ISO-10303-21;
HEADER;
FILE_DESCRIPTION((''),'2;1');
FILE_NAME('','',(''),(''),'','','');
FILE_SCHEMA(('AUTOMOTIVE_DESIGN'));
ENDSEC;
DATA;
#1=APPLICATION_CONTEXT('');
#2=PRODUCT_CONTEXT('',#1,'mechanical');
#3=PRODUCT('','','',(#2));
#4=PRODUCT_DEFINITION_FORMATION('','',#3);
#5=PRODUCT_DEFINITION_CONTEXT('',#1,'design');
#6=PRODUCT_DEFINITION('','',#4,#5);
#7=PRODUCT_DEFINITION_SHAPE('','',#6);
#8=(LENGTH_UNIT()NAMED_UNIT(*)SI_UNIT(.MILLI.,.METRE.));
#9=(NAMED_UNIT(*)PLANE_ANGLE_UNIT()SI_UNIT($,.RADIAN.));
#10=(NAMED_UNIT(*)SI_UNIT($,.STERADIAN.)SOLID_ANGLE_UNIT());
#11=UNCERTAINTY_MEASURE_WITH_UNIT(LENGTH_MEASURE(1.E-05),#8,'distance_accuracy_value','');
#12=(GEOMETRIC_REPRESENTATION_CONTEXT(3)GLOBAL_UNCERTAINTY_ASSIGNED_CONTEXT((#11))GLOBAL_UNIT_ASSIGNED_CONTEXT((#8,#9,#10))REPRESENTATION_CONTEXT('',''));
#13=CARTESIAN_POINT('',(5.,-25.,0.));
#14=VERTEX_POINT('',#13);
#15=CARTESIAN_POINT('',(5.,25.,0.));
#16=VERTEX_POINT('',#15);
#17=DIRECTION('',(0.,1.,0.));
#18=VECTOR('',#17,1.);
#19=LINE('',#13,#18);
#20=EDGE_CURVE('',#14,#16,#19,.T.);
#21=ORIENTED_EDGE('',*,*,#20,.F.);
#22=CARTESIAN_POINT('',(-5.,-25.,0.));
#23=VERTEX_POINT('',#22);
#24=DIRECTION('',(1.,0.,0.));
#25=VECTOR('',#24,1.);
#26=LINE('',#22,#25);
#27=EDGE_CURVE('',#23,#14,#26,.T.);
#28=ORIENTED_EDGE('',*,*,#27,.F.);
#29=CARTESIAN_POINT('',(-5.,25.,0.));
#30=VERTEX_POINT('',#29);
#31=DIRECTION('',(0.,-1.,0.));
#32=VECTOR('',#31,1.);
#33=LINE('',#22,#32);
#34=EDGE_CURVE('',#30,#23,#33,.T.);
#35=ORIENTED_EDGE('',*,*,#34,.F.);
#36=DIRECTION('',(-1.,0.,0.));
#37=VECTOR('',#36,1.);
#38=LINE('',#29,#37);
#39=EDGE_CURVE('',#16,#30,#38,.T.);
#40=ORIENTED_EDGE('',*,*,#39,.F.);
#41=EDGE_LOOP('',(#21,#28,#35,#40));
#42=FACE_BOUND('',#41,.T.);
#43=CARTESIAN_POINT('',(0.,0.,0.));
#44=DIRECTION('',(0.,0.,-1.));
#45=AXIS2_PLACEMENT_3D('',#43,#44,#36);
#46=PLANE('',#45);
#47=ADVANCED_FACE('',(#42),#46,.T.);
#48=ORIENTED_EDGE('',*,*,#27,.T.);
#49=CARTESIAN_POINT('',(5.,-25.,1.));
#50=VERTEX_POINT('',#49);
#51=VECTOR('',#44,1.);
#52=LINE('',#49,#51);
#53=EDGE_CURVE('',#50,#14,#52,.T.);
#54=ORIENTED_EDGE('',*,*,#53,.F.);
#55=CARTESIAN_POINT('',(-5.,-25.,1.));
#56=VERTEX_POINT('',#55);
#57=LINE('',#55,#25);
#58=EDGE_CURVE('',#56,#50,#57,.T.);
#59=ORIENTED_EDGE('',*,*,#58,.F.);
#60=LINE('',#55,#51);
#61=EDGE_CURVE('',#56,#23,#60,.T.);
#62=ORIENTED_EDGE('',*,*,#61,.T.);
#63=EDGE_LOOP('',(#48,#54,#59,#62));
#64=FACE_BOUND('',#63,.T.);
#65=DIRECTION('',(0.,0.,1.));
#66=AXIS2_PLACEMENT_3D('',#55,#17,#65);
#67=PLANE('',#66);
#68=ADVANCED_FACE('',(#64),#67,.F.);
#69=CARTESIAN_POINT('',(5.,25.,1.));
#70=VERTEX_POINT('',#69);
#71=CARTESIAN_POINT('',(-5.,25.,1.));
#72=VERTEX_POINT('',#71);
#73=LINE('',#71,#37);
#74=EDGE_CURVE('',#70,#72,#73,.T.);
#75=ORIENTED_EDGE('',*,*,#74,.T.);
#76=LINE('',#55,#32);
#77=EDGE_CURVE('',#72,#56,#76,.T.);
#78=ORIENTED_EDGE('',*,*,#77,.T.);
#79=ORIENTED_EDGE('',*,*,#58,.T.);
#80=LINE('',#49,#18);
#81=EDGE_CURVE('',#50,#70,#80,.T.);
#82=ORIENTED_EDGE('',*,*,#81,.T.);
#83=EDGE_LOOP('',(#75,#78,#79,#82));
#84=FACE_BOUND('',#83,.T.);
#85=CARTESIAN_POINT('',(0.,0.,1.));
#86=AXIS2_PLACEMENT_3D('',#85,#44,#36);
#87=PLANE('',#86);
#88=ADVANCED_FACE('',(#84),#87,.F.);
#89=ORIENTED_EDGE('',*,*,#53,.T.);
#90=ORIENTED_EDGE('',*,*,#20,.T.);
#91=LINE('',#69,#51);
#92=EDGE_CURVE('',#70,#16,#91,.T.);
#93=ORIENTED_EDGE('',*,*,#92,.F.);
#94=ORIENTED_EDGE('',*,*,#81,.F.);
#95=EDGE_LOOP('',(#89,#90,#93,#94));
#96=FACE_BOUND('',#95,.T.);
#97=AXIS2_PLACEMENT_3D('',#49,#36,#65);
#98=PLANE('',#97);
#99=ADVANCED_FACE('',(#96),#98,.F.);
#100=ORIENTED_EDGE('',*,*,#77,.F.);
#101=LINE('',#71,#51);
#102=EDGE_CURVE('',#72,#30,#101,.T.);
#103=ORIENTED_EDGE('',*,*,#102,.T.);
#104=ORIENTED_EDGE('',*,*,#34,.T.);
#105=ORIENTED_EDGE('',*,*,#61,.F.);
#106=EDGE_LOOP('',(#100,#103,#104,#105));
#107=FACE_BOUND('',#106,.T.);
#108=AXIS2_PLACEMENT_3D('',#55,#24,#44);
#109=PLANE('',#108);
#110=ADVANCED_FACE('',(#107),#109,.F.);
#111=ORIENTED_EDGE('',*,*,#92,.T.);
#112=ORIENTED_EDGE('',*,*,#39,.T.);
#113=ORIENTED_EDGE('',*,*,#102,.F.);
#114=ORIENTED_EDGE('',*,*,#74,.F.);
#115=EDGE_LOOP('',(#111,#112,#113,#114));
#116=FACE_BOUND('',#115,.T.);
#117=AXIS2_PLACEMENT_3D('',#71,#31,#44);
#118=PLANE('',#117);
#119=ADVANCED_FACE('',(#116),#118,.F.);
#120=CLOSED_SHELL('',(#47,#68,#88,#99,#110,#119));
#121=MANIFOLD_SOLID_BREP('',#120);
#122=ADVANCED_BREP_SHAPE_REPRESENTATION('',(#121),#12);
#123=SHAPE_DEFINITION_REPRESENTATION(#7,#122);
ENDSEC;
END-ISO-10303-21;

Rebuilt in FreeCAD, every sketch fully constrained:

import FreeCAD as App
import Part
import Sketcher
from FreeCAD import Vector


def add_polygon(sketch, points):
    """Adds a closed chain of lines whose ends are joined by coincident constraints."""
    first, n = sketch.GeometryCount, len(points)
    for a, b in zip(points, points[1:] + points[:1]):
        sketch.addGeometry(Part.LineSegment(App.Vector(*a, 0), App.Vector(*b, 0)), False)
    for i in range(n):
        sketch.addConstraint(Sketcher.Constraint("Coincident", first + i, 2, first + (i + 1) % n, 1))

doc = App.newDocument("Part")
body = doc.addObject("PartDesign::Body", "Body")

# Sketch on XY plane
sketch1 = body.newObject("Sketcher::SketchObject", "Sketch")
sketch1.AttachmentSupport = (doc.getObject("XY_Plane"), [""])
sketch1.MapMode = "FlatFace"
add_polygon(sketch1, [(-5, 25), (-5, -25), (5, -25), (5, 25)])  # lines 0-3
sketch1.addConstraint([
    Sketcher.Constraint("Vertical", 0),
    Sketcher.Constraint("Horizontal", 1),
    Sketcher.Constraint("Vertical", 2),
    Sketcher.Constraint("Horizontal", 3),
    Sketcher.Constraint("Symmetric", 0, 2, 2, 2, -1, 1),
    Sketcher.Constraint("DistanceX", 1, 1, 1, 2, 10.0),
    Sketcher.Constraint("DistanceY", 0, 2, 0, 1, 50.0),
])
pad1 = body.newObject("PartDesign::Pad", "Pad")
pad1.Profile = sketch1
pad1.Length = 1

doc.recompute()
